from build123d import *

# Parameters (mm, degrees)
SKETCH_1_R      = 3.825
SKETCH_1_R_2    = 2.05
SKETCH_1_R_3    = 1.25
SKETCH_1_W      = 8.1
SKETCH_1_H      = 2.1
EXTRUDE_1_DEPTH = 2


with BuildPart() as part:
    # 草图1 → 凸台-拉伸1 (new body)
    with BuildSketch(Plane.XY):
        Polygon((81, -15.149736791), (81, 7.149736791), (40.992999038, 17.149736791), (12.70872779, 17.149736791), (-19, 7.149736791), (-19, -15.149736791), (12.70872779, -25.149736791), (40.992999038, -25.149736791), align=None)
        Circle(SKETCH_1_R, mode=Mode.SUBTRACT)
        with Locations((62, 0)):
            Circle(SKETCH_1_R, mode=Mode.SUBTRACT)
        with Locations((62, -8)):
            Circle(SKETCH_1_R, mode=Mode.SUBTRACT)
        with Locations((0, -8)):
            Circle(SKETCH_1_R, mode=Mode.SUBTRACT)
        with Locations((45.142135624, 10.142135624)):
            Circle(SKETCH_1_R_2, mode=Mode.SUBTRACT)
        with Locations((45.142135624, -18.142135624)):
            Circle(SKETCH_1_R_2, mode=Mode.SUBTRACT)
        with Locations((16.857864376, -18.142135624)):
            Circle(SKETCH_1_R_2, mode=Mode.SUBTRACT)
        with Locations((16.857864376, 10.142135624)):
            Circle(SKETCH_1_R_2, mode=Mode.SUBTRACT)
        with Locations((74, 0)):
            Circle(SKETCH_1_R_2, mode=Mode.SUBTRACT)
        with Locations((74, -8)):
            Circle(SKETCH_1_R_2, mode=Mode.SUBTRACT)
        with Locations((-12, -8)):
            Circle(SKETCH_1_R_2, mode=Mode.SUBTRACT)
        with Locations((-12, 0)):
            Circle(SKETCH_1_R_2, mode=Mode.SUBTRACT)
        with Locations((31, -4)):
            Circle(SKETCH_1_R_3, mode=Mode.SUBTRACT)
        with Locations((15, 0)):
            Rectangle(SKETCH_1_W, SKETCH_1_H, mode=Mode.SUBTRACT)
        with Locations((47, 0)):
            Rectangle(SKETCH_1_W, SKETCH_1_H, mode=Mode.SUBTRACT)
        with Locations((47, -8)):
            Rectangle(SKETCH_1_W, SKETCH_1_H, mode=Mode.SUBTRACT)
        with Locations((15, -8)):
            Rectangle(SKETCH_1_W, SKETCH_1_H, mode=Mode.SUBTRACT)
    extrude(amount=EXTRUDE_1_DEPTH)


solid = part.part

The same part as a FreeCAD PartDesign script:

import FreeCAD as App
import Part
import Sketcher

V = App.Vector
Q = App.Units.Quantity


def add_polygon(sketch, points):
    """Adds a closed chain of lines whose ends are joined by coincident constraints."""
    first, n = sketch.GeometryCount, len(points)
    for a, b in zip(points, points[1:] + points[:1]):
        sketch.addGeometry(Part.LineSegment(App.Vector(*a, 0), App.Vector(*b, 0)), False)
    for i in range(n):
        sketch.addConstraint(Sketcher.Constraint("Coincident", first + i, 2, first + (i + 1) % n, 1))

doc = App.newDocument("Part")
body = doc.addObject("PartDesign::Body", "Body")

sketch1 = body.newObject("Sketcher::SketchObject", "Sketch")
sketch1.AttachmentSupport = (doc.getObject("XY_Plane"), [""])
sketch1.MapMode = "FlatFace"
add_polygon(sketch1, [(81, -15.1), (81, 7.1), (41, 17.1), (12.7, 17.1), (-19, 7.1), (-19, -15.1), (12.7, -25.1), (41, -25.1)])
sketch1.addGeometry(Part.Circle(V(16.9, -18.1, 0), V(0, 0, 1), 2), False)
sketch1.addGeometry(Part.Circle(V(-12, -8, 0), V(0, 0, 1), 2), False)
sketch1.addGeometry(Part.Circle(V(0, -8, 0), V(0, 0, 1), 3.8), False)
add_polygon(sketch1, [(19.1, -9.1), (10.9, -9.1), (10.9, -7), (19.1, -7)])
sketch1.addGeometry(Part.Circle(V(45.1, -18.1, 0), V(0, 0, 1), 2), False)
add_polygon(sketch1, [(51, -9.1), (43, -9.1), (43, -7), (51, -7)])
sketch1.addGeometry(Part.Circle(V(62, -8, 0), V(0, 0, 1), 3.8), False)
sketch1.addGeometry(Part.Circle(V(74, -8, 0), V(0, 0, 1), 2), False)
sketch1.addGeometry(Part.Circle(V(-12, 0, 0), V(0, 0, 1), 2), False)
sketch1.addGeometry(Part.Circle(V(0, 0, 0), V(0, 0, 1), 3.8), False)
add_polygon(sketch1, [(19.1, -1.1), (10.9, -1.1), (10.9, 1.1), (19.1, 1.1)])
sketch1.addGeometry(Part.Circle(V(16.9, 10.1, 0), V(0, 0, 1), 2), False)
sketch1.addGeometry(Part.Circle(V(31, -4, 0), V(0, 0, 1), 1.2), False)
add_polygon(sketch1, [(51, -1.1), (43, -1.1), (43, 1.1), (51, 1.1)])
sketch1.addGeometry(Part.Circle(V(62, 0, 0), V(0, 0, 1), 3.8), False)
sketch1.addGeometry(Part.Circle(V(74, 0, 0), V(0, 0, 1), 2), False)
sketch1.addGeometry(Part.Circle(V(45.1, 10.1, 0), V(0, 0, 1), 2), False)
sketch1.addConstraint(Sketcher.Constraint("Vertical", 0))
sketch1.addConstraint(Sketcher.Constraint("Horizontal", 2))
sketch1.addConstraint(Sketcher.Constraint("Vertical", 4))
sketch1.addConstraint(Sketcher.Constraint("Horizontal", 6))
sketch1.addConstraint(Sketcher.Constraint("Horizontal", 11))
sketch1.addConstraint(Sketcher.Constraint("Vertical", 12))
sketch1.addConstraint(Sketcher.Constraint("Horizontal", 13))
sketch1.addConstraint(Sketcher.Constraint("Vertical", 14))
sketch1.addConstraint(Sketcher.Constraint("Horizontal", 16))
sketch1.addConstraint(Sketcher.Constraint("Vertical", 17))
sketch1.addConstraint(Sketcher.Constraint("Horizontal", 18))
sketch1.addConstraint(Sketcher.Constraint("Vertical", 19))
sketch1.addConstraint(Sketcher.Constraint("Horizontal", 24))
sketch1.addConstraint(Sketcher.Constraint("Vertical", 25))
sketch1.addConstraint(Sketcher.Constraint("Horizontal", 26))
sketch1.addConstraint(Sketcher.Constraint("Vertical", 27))
sketch1.addConstraint(Sketcher.Constraint("Horizontal", 30))
sketch1.addConstraint(Sketcher.Constraint("Vertical", 31))
sketch1.addConstraint(Sketcher.Constraint("Horizontal", 32))
sketch1.addConstraint(Sketcher.Constraint("Vertical", 33))
sketch1.addConstraint(Sketcher.Constraint("Coincident", 23, 3, -1, 1))
sketch1.addConstraint(Sketcher.Constraint("Equal", 8, 9))
sketch1.addConstraint(Sketcher.Constraint("Equal", 9, 15))
sketch1.addConstraint(Sketcher.Constraint("Equal", 10, 20))
sketch1.addConstraint(Sketcher.Constraint("Equal", 15, 21))
sketch1.addConstraint(Sketcher.Constraint("Equal", 21, 22))
sketch1.addConstraint(Sketcher.Constraint("Equal", 20, 23))
sketch1.addConstraint(Sketcher.Constraint("Equal", 22, 28))
sketch1.addConstraint(Sketcher.Constraint("Equal", 23, 34))
sketch1.addConstraint(Sketcher.Constraint("Equal", 28, 35))
sketch1.addConstraint(Sketcher.Constraint("Equal", 35, 36))
sketch1.addConstraint(Sketcher.Constraint("PointOnObject", 10, 3, -2))
sketch1.addConstraint(Sketcher.Constraint("PointOnObject", 22, 3, -1))
sketch1.addConstraint(Sketcher.Constraint("PointOnObject", 34, 3, -1))
sketch1.addConstraint(Sketcher.Constraint("PointOnObject", 35, 3, -1))
sketch1.addConstraint(Sketcher.Constraint("Horizontal", 9, 3, 10, 3))
sketch1.addConstraint(Sketcher.Constraint("Horizontal", 8, 3, 15, 3))
sketch1.addConstraint(Sketcher.Constraint("Horizontal", 10, 3, 20, 3))
sketch1.addConstraint(Sketcher.Constraint("Horizontal", 20, 3, 21, 3))
sketch1.addConstraint(Sketcher.Constraint("Horizontal", 28, 3, 36, 3))
sketch1.addConstraint(Sketcher.Constraint("Horizontal", 0, 2, 3, 2))
sketch1.addConstraint(Sketcher.Constraint("Horizontal", 4, 2, 7, 2))
sketch1.addConstraint(Sketcher.Constraint("Horizontal", 14, 2, 16, 2))
sketch1.addConstraint(Sketcher.Constraint("Horizontal", 13, 2, 17, 2))
sketch1.addConstraint(Sketcher.Constraint("Horizontal", 27, 2, 30, 2))
sketch1.addConstraint(Sketcher.Constraint("Horizontal", 26, 2, 31, 2))
sketch1.addConstraint(Sketcher.Constraint("Vertical", 9, 3, 22, 3))
sketch1.addConstraint(Sketcher.Constraint("Vertical", 8, 3, 28, 3))
sketch1.addConstraint(Sketcher.Constraint("Vertical", 20, 3, 34, 3))
sketch1.addConstraint(Sketcher.Constraint("Vertical", 21, 3, 35, 3))
sketch1.addConstraint(Sketcher.Constraint("Vertical", 15, 3, 36, 3))
sketch1.addConstraint(Sketcher.Constraint("Vertical", 2, 2, 5, 2))
sketch1.addConstraint(Sketcher.Constraint("Vertical", 1, 2, 6, 2))
sketch1.addConstraint(Sketcher.Constraint("Vertical", 12, 2, 24, 2))
sketch1.addConstraint(Sketcher.Constraint("Vertical", 14, 2, 26, 2))
sketch1.addConstraint(Sketcher.Constraint("Vertical", 17, 2, 30, 2))
sketch1.addConstraint(Sketcher.Constraint("Vertical", 19, 2, 32, 2))
sketch1.addConstraint(Sketcher.Constraint("Equal", 13, 16))
sketch1.addConstraint(Sketcher.Constraint("Equal", 19, 25))
sketch1.addConstraint(Sketcher.Constraint("Equal", 3, 5))
sketch1.addConstraint(Sketcher.Constraint("Diameter", 8, Q("4.1 mm")))
sketch1.addConstraint(Sketcher.Constraint("Diameter", 29, Q("2.5 mm")))
sketch1.addConstraint(Sketcher.Constraint("Diameter", 10, Q("7.65 mm")))
sketch1.addConstraint(Sketcher.Constraint("DistanceX", 11, 2, 11, 1, Q("8.1 mm")))
sketch1.addConstraint(Sketcher.Constraint("DistanceY", 12, 1, 12, 2, Q("2.1 mm")))
sketch1.addConstraint(Sketcher.Constraint("DistanceX", 9, 3, -1, 1, Q("12 mm")))
sketch1.addConstraint(Sketcher.Constraint("DistanceY", 9, 3, -1, 1, Q("8 mm")))
sketch1.addConstraint(Sketcher.Constraint("DistanceX", -1, 1, 20, 3, Q("62 mm")))
sketch1.addConstraint(Sketcher.Constraint("DistanceX", -1, 1, 21, 3, Q("74 mm")))
sketch1.addConstraint(Sketcher.Constraint("DistanceX", -1, 1, 29, 3, Q("31 mm")))
sketch1.addConstraint(Sketcher.Constraint("DistanceY", 29, 3, -1, 1, Q("4 mm")))
sketch1.addConstraint(Sketcher.Constraint("DistanceX", -1, 1, 0, 2, Q("81 mm")))
sketch1.addConstraint(Sketcher.Constraint("DistanceX", 3, 2, -1, 1, Q("19 mm")))
sketch1.addConstraint(Sketcher.Constraint("DistanceY", 3, 2, 2, 2, Q("10 mm")))
sketch1.addConstraint(Sketcher.Constraint("DistanceY", 11, 2, 24, 2, Q("8 mm")))
sketch1.addConstraint(Sketcher.Constraint("DistanceX", -1, 1, 11, 2, Q("10.95 mm")))
sketch1.addConstraint(Sketcher.Constraint("DistanceY", 11, 2, -1, 1, Q("9.05 mm")))
sketch1.addConstraint(Sketcher.Constraint("DistanceX", -1, 1, 16, 2, Q("42.95 mm")))
sketch1.addConstraint(Sketcher.Constraint("DistanceX", -1, 1, 1, 2, Q("40.992999 mm")))
sketch1.addConstraint(Sketcher.Constraint("DistanceX", 2, 2, 2, 1, Q("28.284271 mm")))
sketch1.addConstraint(Sketcher.Constraint("DistanceY", 0, 2, 36, 3, Q("2.992399 mm")))
sketch1.addConstraint(Sketcher.Constraint("DistanceY", 5, 2, 8, 3, Q("7.007601 mm")))
sketch1.addConstraint(Sketcher.Constraint("DistanceY", 0, 1, 0, 2, Q("22.299474 mm")))
sketch1.addConstraint(Sketcher.Constraint("DistanceX", 8, 3, 15, 3, Q("28.284271 mm")))
sketch1.addConstraint(Sketcher.Constraint("DistanceX", -1, 1, 8, 3, Q("16.857864 mm")))
sketch1.addConstraint(Sketcher.Constraint("DistanceY", 8, 3, -1, 1, Q("18.142136 mm")))
pad1 = body.newObject("PartDesign::Pad", "Pad")
pad1.Profile = sketch1
pad1.Length = 2

doc.recompute()
